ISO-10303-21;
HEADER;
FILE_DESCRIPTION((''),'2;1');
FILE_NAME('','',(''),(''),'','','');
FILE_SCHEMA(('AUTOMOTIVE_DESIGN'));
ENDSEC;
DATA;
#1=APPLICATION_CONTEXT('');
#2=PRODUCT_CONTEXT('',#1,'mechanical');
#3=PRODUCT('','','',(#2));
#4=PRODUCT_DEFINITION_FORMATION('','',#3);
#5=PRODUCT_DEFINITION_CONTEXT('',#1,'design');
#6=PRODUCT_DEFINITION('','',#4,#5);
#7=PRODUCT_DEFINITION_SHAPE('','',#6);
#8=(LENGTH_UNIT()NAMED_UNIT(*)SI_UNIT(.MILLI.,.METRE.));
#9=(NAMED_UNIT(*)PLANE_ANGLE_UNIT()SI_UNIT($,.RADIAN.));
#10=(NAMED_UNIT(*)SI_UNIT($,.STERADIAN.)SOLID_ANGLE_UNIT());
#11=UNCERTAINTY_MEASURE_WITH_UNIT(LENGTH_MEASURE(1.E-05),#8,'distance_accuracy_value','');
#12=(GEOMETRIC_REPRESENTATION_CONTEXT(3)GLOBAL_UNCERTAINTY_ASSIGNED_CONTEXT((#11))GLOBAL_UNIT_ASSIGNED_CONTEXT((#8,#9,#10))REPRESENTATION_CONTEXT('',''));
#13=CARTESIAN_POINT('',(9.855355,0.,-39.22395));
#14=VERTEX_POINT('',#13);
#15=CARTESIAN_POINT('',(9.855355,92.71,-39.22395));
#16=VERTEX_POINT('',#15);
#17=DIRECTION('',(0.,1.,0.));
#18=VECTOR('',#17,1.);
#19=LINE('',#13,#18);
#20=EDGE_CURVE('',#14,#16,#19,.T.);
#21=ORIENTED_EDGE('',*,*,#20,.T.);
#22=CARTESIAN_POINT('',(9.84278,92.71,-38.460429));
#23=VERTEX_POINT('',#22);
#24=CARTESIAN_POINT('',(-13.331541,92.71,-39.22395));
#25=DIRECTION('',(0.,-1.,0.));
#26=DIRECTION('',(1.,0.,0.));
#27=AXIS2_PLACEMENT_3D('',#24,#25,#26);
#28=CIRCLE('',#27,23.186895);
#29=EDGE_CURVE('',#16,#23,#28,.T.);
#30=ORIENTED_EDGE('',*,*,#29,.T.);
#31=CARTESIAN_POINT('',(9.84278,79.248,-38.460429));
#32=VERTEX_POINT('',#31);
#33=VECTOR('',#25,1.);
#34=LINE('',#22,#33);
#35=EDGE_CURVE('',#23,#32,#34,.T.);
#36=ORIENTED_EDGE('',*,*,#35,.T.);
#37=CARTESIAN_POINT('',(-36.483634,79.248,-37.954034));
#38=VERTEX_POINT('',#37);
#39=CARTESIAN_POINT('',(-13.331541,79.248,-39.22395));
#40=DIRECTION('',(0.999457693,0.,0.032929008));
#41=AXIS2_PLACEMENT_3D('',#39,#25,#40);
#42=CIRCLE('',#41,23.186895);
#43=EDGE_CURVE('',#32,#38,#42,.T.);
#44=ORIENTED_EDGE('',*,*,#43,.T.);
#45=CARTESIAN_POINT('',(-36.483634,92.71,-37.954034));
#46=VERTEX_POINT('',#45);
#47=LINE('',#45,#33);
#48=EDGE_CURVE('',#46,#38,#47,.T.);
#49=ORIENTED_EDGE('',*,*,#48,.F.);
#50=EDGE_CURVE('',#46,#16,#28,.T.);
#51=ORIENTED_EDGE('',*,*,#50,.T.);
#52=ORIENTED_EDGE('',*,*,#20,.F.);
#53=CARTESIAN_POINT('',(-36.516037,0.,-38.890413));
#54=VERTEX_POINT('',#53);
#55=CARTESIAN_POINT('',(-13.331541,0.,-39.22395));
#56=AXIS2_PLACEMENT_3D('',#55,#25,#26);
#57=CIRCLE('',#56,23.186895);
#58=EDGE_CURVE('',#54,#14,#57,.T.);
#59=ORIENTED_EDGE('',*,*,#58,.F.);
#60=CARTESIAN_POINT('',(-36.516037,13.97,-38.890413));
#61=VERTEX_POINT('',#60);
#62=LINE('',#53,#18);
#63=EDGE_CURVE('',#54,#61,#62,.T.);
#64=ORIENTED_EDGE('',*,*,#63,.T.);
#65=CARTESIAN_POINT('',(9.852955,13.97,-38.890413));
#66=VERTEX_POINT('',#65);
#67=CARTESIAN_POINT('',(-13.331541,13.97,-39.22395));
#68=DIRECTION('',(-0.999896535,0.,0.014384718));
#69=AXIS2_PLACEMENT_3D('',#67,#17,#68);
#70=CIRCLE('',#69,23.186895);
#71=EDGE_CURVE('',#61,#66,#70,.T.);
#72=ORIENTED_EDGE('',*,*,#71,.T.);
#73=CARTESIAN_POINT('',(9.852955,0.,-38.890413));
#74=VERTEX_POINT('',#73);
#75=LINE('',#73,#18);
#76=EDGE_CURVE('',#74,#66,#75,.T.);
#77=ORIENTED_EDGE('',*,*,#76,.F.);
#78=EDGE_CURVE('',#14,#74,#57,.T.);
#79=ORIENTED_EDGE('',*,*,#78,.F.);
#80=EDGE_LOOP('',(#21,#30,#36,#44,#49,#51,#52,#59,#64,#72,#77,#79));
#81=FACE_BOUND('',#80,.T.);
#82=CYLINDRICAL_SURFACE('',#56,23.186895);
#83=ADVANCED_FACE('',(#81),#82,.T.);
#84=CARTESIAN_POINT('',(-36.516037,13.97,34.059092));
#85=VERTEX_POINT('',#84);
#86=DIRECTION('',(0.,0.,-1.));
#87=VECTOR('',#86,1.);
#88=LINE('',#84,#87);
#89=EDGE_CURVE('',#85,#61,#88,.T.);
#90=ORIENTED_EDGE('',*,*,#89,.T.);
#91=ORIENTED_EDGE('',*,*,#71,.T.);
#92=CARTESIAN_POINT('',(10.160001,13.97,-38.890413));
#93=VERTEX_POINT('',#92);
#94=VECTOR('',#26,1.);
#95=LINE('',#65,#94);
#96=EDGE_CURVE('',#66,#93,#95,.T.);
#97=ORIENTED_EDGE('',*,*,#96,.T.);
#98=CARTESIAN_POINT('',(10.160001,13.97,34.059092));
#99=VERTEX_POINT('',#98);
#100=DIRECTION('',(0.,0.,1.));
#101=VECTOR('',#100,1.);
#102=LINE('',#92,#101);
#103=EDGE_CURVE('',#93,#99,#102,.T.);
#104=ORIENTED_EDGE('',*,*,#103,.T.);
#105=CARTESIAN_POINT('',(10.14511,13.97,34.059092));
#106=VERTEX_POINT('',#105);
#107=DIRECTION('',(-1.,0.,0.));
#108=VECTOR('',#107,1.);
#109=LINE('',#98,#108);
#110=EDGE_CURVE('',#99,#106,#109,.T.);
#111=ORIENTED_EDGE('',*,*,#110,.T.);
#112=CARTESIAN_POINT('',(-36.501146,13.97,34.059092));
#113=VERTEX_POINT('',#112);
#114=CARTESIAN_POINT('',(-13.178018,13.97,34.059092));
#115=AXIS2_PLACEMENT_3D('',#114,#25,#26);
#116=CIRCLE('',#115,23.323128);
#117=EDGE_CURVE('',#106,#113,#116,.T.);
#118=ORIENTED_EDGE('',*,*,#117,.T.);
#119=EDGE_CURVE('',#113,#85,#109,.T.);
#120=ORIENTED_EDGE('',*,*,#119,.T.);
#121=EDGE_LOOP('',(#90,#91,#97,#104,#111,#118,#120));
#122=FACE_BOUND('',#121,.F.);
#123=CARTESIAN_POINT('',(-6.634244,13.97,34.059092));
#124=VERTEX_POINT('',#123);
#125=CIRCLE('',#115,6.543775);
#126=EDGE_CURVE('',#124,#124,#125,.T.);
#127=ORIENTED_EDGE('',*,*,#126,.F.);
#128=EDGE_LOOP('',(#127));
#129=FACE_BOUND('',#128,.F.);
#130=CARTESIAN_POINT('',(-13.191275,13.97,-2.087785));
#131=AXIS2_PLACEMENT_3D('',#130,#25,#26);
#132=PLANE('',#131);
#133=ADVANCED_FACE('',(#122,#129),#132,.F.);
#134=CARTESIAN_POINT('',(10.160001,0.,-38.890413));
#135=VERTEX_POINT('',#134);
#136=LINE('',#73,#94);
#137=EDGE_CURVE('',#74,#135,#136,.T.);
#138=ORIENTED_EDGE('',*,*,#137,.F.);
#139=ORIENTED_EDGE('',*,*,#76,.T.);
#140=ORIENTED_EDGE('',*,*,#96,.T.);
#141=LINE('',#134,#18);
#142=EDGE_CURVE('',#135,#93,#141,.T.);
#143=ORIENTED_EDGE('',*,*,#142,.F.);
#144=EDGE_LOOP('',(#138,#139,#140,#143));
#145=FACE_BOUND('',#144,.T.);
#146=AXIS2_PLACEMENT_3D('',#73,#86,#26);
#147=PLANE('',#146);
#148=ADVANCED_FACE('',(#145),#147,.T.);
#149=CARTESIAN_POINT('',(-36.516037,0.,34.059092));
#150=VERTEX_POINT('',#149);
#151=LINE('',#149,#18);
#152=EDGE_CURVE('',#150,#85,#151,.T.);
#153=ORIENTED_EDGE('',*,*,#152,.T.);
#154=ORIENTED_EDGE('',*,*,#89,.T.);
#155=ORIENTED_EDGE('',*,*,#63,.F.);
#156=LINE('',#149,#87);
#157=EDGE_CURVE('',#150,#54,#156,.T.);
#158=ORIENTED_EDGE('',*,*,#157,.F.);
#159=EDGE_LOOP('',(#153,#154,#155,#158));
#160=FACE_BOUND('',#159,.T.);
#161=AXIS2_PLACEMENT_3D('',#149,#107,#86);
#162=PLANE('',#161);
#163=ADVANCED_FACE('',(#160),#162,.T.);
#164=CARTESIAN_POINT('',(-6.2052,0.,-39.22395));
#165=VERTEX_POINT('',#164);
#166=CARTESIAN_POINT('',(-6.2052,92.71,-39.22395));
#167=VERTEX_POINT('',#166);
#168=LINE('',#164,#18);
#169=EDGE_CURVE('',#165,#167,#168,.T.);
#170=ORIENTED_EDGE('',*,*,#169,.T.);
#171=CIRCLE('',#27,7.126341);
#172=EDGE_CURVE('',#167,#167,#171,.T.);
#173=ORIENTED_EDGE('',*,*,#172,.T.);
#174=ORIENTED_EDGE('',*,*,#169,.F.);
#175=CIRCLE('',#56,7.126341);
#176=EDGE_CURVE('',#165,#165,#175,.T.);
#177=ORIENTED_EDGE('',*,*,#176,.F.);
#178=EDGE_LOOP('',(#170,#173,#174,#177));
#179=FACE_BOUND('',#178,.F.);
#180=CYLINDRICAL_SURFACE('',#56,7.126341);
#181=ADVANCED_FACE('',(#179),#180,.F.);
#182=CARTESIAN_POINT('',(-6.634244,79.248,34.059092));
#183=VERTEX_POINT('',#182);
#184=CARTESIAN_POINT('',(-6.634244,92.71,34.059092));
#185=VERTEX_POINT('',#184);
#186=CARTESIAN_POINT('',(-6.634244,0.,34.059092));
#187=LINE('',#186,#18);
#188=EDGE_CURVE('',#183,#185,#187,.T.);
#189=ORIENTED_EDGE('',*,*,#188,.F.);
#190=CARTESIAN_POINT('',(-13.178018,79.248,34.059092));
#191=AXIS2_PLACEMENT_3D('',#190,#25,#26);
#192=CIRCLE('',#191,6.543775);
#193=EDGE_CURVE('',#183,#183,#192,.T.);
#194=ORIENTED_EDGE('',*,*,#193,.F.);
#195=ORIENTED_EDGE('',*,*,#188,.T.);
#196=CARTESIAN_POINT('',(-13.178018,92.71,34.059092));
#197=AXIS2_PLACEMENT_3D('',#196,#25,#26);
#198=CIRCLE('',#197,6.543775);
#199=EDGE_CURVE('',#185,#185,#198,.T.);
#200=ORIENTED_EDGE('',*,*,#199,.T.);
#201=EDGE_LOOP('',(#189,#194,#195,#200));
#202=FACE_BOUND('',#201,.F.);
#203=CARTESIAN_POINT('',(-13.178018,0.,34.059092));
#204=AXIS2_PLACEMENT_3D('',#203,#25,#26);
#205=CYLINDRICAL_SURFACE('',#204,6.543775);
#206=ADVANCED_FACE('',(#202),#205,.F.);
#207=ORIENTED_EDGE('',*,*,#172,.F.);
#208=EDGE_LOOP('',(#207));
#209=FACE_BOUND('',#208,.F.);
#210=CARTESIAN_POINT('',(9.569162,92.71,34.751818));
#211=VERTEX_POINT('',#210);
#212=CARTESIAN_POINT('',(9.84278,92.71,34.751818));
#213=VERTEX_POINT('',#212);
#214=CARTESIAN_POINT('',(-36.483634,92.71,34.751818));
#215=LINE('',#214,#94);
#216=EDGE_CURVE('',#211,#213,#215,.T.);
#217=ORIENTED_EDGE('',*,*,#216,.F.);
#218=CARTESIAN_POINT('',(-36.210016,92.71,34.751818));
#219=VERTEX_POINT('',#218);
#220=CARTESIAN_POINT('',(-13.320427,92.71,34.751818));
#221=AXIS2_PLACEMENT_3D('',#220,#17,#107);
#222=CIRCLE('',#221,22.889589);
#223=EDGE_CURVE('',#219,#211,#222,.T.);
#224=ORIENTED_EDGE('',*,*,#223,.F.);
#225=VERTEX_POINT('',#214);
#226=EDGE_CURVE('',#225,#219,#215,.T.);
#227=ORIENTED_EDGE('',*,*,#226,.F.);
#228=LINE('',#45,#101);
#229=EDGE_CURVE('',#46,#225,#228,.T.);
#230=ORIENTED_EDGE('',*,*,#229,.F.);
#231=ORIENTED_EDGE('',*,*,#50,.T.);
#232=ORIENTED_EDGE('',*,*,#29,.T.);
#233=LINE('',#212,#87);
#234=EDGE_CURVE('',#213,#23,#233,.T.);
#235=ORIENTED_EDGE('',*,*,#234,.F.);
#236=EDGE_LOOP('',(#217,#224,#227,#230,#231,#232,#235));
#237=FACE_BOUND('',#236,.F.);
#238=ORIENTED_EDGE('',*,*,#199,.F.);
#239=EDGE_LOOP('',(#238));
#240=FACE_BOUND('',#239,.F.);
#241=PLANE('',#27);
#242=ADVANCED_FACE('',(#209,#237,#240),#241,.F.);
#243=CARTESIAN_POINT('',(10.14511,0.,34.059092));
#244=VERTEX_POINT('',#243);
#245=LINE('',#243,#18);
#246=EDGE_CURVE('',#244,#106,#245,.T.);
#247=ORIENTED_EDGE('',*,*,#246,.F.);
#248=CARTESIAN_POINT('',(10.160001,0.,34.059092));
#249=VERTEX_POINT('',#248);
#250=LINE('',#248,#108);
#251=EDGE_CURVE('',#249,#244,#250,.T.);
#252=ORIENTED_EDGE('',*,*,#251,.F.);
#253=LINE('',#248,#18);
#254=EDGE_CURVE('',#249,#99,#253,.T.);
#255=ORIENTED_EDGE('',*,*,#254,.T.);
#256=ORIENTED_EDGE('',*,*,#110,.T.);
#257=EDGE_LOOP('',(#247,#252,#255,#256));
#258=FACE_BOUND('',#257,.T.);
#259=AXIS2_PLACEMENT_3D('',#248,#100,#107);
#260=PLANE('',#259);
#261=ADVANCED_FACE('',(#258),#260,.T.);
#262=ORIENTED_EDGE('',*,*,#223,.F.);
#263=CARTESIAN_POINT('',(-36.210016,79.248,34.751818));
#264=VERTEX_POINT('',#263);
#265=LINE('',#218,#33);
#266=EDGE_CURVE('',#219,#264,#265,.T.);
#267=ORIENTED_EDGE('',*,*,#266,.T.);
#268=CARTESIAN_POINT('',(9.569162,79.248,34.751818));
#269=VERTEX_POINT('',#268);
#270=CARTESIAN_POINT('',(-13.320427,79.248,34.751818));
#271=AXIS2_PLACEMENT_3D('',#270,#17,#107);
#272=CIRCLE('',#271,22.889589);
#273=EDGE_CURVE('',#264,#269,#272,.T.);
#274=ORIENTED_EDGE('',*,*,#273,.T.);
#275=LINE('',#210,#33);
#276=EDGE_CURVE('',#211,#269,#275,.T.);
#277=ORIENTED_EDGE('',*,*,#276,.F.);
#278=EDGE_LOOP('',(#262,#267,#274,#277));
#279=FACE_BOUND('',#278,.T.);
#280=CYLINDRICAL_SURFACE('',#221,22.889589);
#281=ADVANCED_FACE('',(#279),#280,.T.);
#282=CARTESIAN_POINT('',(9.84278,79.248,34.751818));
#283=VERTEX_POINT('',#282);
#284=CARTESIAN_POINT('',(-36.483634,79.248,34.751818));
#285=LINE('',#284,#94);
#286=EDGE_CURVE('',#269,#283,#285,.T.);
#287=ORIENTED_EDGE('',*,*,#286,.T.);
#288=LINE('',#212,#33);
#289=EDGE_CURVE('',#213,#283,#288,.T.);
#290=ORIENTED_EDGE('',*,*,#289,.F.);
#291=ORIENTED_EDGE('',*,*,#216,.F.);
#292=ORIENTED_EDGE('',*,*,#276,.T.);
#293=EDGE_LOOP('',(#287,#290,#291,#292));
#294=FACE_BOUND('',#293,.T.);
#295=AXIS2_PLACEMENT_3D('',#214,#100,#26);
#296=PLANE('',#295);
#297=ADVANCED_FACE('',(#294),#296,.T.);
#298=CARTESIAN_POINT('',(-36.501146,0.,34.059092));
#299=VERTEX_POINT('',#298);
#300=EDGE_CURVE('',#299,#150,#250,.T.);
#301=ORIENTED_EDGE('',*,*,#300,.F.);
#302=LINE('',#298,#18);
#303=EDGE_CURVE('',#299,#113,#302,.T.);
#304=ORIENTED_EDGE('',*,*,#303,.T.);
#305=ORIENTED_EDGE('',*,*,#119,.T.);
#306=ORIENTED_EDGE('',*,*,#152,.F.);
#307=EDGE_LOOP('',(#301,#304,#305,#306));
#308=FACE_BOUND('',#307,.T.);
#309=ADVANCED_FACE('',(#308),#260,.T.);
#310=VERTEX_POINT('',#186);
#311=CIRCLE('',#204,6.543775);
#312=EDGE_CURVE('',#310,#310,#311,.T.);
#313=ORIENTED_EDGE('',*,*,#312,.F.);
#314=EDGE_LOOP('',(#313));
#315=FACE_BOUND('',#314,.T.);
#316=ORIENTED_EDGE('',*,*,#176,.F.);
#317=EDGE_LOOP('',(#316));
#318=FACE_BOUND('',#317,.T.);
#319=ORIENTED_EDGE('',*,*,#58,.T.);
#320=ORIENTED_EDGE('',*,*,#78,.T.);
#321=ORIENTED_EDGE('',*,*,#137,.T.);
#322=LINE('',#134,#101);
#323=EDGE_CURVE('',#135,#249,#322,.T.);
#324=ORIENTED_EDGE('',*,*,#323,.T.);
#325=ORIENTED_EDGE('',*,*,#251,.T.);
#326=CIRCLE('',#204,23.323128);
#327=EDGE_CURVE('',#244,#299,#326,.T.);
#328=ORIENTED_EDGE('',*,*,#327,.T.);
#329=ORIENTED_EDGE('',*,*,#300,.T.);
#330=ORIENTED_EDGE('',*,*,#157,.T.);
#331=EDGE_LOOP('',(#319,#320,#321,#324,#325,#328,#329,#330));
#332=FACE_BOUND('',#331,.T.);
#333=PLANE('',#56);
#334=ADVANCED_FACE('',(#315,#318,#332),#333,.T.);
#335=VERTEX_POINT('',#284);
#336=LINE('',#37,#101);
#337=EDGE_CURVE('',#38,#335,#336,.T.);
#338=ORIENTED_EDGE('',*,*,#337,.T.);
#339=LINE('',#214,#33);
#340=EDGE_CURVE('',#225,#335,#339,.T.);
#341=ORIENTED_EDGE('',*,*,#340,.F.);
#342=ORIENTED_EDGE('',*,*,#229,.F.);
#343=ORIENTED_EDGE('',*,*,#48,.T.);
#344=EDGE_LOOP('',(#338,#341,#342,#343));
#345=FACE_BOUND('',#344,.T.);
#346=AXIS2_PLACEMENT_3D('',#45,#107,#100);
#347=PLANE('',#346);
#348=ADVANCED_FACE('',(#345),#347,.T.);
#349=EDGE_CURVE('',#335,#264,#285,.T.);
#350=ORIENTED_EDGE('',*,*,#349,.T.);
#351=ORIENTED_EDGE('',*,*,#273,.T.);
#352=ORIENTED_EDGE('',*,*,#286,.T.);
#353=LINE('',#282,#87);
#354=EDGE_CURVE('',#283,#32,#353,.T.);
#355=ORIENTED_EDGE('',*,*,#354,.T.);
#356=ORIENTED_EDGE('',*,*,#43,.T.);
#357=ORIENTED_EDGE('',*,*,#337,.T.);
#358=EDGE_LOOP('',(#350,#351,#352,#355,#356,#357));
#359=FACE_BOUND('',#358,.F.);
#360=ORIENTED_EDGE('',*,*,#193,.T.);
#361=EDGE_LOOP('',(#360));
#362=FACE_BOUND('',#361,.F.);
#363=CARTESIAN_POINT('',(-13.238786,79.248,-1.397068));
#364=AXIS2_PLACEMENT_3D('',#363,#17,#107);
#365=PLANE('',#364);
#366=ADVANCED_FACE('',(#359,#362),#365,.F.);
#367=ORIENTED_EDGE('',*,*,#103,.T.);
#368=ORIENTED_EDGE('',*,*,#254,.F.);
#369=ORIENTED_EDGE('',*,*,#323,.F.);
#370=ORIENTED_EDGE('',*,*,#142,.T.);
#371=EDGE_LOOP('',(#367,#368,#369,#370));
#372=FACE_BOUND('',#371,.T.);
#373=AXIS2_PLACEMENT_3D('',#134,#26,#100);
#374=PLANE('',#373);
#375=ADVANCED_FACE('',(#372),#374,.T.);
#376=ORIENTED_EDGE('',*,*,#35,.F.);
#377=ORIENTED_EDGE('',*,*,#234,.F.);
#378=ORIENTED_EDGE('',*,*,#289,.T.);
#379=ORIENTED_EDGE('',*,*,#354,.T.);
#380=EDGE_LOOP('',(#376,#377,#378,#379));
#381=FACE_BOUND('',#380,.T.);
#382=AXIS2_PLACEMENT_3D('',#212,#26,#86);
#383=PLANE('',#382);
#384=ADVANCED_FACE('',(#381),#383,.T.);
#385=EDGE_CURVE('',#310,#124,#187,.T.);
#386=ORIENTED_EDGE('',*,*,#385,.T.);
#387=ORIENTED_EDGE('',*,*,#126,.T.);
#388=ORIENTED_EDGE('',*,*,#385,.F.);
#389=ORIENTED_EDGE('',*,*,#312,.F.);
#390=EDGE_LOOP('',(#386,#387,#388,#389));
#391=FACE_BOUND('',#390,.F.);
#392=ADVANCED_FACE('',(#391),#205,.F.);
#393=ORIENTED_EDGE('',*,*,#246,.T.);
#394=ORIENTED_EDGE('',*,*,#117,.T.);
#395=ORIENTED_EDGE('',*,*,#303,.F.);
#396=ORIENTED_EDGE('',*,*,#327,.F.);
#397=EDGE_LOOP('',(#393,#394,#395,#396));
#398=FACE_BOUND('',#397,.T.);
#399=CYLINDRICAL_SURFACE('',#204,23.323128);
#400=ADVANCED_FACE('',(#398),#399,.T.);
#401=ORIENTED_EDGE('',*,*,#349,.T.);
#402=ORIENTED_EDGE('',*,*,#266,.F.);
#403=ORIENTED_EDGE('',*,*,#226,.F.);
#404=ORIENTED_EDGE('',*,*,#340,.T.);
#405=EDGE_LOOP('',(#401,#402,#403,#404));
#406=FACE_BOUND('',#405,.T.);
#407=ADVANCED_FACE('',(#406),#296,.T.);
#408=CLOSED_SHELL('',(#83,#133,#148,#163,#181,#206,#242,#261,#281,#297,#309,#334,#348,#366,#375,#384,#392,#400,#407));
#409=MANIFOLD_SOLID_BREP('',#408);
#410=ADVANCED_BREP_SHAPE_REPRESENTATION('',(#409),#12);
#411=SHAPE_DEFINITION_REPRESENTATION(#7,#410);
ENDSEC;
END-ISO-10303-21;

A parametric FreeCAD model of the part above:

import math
import FreeCAD as App
import Part
import Sketcher
Q = App.Units.Quantity

doc = App.newDocument("Part")
body = doc.addObject("PartDesign::Body", "Body")

sketch1 = body.newObject("Sketcher::SketchObject", "Sketch")
sketch1.AttachmentSupport = (doc.getObject("XZ_Plane"), [""])
sketch1.MapMode = "FlatFace"
sketch1.addGeometry(Part.Circle(App.Vector(-13, -39, 0), App.Vector(0, 0, 1), 23), False)
sketch1.addConstraint([
    Sketcher.Constraint("Diameter", 0, 46.373791),
    Sketcher.Constraint("DistanceX", 0, 3, -1, 1, 13.331541),
    Sketcher.Constraint("DistanceY", 0, 3, -1, 1, 39.22395),
])
pad1 = body.newObject("PartDesign::Pad", "Pad")
pad1.Profile = sketch1
pad1.Length = Q("3.65 in")
pad1.Reversed = True

sketch2 = body.newObject("Sketcher::SketchObject", "Sketch001")
sketch2.AttachmentSupport = (doc.getObject("XZ_Plane"), [""])
sketch2.MapMode = "FlatFace"
sketch2.addGeometry([
    Part.LineSegment(App.Vector(-36.52, 34.06, 0), App.Vector(-36.52, -38.89, 0)),
    Part.ArcOfCircle(Part.Circle(App.Vector(-13.33, -39.22, 0), App.Vector(0, 0, 1), 23.19), math.radians(1), math.radians(179)),
    Part.LineSegment(App.Vector(9.85, -38.89, 0), App.Vector(10.16, -38.89, 0)),
    Part.LineSegment(App.Vector(10.16, -38.89, 0), App.Vector(10.16, 34.06, 0)),
    Part.LineSegment(App.Vector(10.16, 34.06, 0), App.Vector(-36.52, 34.06, 0)),
], False)
sketch2.addConstraint([
    Sketcher.Constraint("Coincident", 0, 2, 1, 2),
    Sketcher.Constraint("Coincident", 1, 1, 2, 1),
    Sketcher.Constraint("Coincident", 2, 2, 3, 1),
    Sketcher.Constraint("Coincident", 3, 2, 4, 1),
    Sketcher.Constraint("Coincident", 4, 2, 0, 1),
    Sketcher.Constraint("Vertical", 0),
    Sketcher.Constraint("Horizontal", 2),
    Sketcher.Constraint("Vertical", 3),
    Sketcher.Constraint("Horizontal", 4),
    Sketcher.Constraint("Horizontal", 0, 2, 1, 1),
    Sketcher.Constraint("DistanceX", -1, 1, 2, 2, Q("0.4 in")),
    Sketcher.Constraint("Radius", 1, 23.186895),
    Sketcher.Constraint("DistanceX", 4, 2, 4, 1, 46.676038),
    Sketcher.Constraint("DistanceX", 2, 1, 2, 2, 0.307046),
    Sketcher.Constraint("DistanceY", 0, 2, 0, 1, 72.949506),
    Sketcher.Constraint("DistanceY", 1, 3, -1, 1, 39.22395),
])
pad2 = body.newObject("PartDesign::Pad", "Pad001")
pad2.Profile = sketch2
pad2.Length = Q("0.55 in")
pad2.Reversed = True

sketch3 = body.newObject("Sketcher::SketchObject", "Sketch002")
sketch3.AttachmentSupport = (doc.getObject("XZ_Plane"), [""])
sketch3.MapMode = "FlatFace"
sketch3.addGeometry([
    Part.LineSegment(App.Vector(-37, 34, 0), App.Vector(10, 34, 0)),
    Part.ArcOfCircle(Part.Circle(App.Vector(-13, 34, 0), App.Vector(0, 0, 1), 23), math.radians(0), math.radians(180)),
], False)
sketch3.addConstraint([
    Sketcher.Constraint("Coincident", 0, 1, 1, 2),
    Sketcher.Constraint("Coincident", 1, 1, 0, 2),
    Sketcher.Constraint("Horizontal", 0),
    Sketcher.Constraint("Horizontal", 1, 3, 0, 1),
    Sketcher.Constraint("Radius", 1, 23.323128),
    Sketcher.Constraint("DistanceX", 1, 3, -1, 1, 13.178018),
    Sketcher.Constraint("DistanceY", -1, 1, 1, 3, 34.059092),
])
pad3 = body.newObject("PartDesign::Pad", "Pad002")
pad3.Profile = sketch3
pad3.Length = Q("0.55 in")
pad3.Reversed = True

sketch4 = body.newObject("Sketcher::SketchObject", "Sketch003")
sketch4.AttachmentSupport = (doc.getObject("XZ_Plane"), [""])
sketch4.MapMode = "FlatFace"
sketch4.AttachmentOffset = App.Placement(App.Vector(0, 0, -3.65 * 25.4), App.Rotation())
sketch4.addGeometry([
    Part.LineSegment(App.Vector(10, 35, 0), App.Vector(10, -38, 0)),
    Part.ArcOfCircle(Part.Circle(App.Vector(-13, -39, 0), App.Vector(0, 0, 1), 23), math.radians(2), math.radians(177)),
    Part.LineSegment(App.Vector(-36, -38, 0), App.Vector(-36, 35, 0)),
    Part.LineSegment(App.Vector(-36, 35, 0), App.Vector(10, 35, 0)),
], False)
sketch4.addConstraint([
    Sketcher.Constraint("Coincident", 0, 2, 1, 1),
    Sketcher.Constraint("Coincident", 1, 2, 2, 1),
    Sketcher.Constraint("Coincident", 2, 2, 3, 1),
    Sketcher.Constraint("Coincident", 3, 2, 0, 1),
    Sketcher.Constraint("Vertical", 0),
    Sketcher.Constraint("Vertical", 2),
    Sketcher.Constraint("Horizontal", 3),
    Sketcher.Constraint("Radius", 1, 23.186895),
    Sketcher.Constraint("DistanceY", 2, 1, 2, 2, 72.705851),
    Sketcher.Constraint("DistanceX", 3, 1, 3, 2, 46.326414),
    Sketcher.Constraint("DistanceY", 0, 2, 0, 1, 73.212246),
    Sketcher.Constraint("DistanceX", 1, 3, -1, 1, 13.331541),
    Sketcher.Constraint("DistanceY", 1, 3, -1, 1, 39.22395),
])
pad4 = body.newObject("PartDesign::Pad", "Pad003")
pad4.Profile = sketch4
pad4.Length = Q("0.53 in")

sketch5 = body.newObject("Sketcher::SketchObject", "Sketch004")
sketch5.AttachmentSupport = (doc.getObject("XZ_Plane"), [""])
sketch5.MapMode = "FlatFace"
sketch5.AttachmentOffset = App.Placement(App.Vector(0, 0, -3.65 * 25.4), App.Rotation())
sketch5.addGeometry([
    Part.LineSegment(App.Vector(10, 35, 0), App.Vector(-36, 35, 0)),
    Part.ArcOfCircle(Part.Circle(App.Vector(-13, 35, 0), App.Vector(0, 0, 1), 23), math.radians(0), math.radians(180)),
], False)
sketch5.addConstraint([
    Sketcher.Constraint("Coincident", 0, 1, 1, 1),
    Sketcher.Constraint("Coincident", 1, 2, 0, 2),
    Sketcher.Constraint("Horizontal", 0),
    Sketcher.Constraint("Horizontal", 1, 3, 0, 1),
    Sketcher.Constraint("Radius", 1, 22.889589),
    Sketcher.Constraint("DistanceX", -1, 1, 0, 1, 9.569162),
    Sketcher.Constraint("DistanceY", -1, 1, 1, 3, 34.751818),
])
pad5 = body.newObject("PartDesign::Pad", "Pad004")
pad5.Profile = sketch5
pad5.Length = Q("0.53 in")

sketch6 = body.newObject("Sketcher::SketchObject", "Sketch005")
sketch6.AttachmentSupport = (doc.getObject("XZ_Plane"), [""])
sketch6.MapMode = "FlatFace"
sketch6.addGeometry(Part.Circle(App.Vector(-13, -39, 0), App.Vector(0, 0, 1), 7), False)
sketch6.addConstraint([
    Sketcher.Constraint("Diameter", 0, 14.252681),
    Sketcher.Constraint("DistanceX", 0, 3, -1, 1, 13.331541),
    Sketcher.Constraint("DistanceY", 0, 3, -1, 1, 39.22395),
])
pocket1 = body.newObject("PartDesign::Pocket", "Pocket")
pocket1.Profile = sketch6
pocket1.Type = "ThroughAll"

sketch7 = body.newObject("Sketcher::SketchObject", "Sketch006")
sketch7.AttachmentSupport = (doc.getObject("XZ_Plane"), [""])
sketch7.MapMode = "FlatFace"
sketch7.addGeometry(Part.Circle(App.Vector(-13, 34, 0), App.Vector(0, 0, 1), 7), False)
sketch7.addConstraint([
    Sketcher.Constraint("Diameter", 0, 13.087549),
    Sketcher.Constraint("DistanceX", 0, 3, -1, 1, 13.178018),
    Sketcher.Constraint("DistanceY", -1, 1, 0, 3, 34.059092),
])
pocket2 = body.newObject("PartDesign::Pocket", "Pocket001")
pocket2.Profile = sketch7
pocket2.Type = "ThroughAll"

doc.recompute()
